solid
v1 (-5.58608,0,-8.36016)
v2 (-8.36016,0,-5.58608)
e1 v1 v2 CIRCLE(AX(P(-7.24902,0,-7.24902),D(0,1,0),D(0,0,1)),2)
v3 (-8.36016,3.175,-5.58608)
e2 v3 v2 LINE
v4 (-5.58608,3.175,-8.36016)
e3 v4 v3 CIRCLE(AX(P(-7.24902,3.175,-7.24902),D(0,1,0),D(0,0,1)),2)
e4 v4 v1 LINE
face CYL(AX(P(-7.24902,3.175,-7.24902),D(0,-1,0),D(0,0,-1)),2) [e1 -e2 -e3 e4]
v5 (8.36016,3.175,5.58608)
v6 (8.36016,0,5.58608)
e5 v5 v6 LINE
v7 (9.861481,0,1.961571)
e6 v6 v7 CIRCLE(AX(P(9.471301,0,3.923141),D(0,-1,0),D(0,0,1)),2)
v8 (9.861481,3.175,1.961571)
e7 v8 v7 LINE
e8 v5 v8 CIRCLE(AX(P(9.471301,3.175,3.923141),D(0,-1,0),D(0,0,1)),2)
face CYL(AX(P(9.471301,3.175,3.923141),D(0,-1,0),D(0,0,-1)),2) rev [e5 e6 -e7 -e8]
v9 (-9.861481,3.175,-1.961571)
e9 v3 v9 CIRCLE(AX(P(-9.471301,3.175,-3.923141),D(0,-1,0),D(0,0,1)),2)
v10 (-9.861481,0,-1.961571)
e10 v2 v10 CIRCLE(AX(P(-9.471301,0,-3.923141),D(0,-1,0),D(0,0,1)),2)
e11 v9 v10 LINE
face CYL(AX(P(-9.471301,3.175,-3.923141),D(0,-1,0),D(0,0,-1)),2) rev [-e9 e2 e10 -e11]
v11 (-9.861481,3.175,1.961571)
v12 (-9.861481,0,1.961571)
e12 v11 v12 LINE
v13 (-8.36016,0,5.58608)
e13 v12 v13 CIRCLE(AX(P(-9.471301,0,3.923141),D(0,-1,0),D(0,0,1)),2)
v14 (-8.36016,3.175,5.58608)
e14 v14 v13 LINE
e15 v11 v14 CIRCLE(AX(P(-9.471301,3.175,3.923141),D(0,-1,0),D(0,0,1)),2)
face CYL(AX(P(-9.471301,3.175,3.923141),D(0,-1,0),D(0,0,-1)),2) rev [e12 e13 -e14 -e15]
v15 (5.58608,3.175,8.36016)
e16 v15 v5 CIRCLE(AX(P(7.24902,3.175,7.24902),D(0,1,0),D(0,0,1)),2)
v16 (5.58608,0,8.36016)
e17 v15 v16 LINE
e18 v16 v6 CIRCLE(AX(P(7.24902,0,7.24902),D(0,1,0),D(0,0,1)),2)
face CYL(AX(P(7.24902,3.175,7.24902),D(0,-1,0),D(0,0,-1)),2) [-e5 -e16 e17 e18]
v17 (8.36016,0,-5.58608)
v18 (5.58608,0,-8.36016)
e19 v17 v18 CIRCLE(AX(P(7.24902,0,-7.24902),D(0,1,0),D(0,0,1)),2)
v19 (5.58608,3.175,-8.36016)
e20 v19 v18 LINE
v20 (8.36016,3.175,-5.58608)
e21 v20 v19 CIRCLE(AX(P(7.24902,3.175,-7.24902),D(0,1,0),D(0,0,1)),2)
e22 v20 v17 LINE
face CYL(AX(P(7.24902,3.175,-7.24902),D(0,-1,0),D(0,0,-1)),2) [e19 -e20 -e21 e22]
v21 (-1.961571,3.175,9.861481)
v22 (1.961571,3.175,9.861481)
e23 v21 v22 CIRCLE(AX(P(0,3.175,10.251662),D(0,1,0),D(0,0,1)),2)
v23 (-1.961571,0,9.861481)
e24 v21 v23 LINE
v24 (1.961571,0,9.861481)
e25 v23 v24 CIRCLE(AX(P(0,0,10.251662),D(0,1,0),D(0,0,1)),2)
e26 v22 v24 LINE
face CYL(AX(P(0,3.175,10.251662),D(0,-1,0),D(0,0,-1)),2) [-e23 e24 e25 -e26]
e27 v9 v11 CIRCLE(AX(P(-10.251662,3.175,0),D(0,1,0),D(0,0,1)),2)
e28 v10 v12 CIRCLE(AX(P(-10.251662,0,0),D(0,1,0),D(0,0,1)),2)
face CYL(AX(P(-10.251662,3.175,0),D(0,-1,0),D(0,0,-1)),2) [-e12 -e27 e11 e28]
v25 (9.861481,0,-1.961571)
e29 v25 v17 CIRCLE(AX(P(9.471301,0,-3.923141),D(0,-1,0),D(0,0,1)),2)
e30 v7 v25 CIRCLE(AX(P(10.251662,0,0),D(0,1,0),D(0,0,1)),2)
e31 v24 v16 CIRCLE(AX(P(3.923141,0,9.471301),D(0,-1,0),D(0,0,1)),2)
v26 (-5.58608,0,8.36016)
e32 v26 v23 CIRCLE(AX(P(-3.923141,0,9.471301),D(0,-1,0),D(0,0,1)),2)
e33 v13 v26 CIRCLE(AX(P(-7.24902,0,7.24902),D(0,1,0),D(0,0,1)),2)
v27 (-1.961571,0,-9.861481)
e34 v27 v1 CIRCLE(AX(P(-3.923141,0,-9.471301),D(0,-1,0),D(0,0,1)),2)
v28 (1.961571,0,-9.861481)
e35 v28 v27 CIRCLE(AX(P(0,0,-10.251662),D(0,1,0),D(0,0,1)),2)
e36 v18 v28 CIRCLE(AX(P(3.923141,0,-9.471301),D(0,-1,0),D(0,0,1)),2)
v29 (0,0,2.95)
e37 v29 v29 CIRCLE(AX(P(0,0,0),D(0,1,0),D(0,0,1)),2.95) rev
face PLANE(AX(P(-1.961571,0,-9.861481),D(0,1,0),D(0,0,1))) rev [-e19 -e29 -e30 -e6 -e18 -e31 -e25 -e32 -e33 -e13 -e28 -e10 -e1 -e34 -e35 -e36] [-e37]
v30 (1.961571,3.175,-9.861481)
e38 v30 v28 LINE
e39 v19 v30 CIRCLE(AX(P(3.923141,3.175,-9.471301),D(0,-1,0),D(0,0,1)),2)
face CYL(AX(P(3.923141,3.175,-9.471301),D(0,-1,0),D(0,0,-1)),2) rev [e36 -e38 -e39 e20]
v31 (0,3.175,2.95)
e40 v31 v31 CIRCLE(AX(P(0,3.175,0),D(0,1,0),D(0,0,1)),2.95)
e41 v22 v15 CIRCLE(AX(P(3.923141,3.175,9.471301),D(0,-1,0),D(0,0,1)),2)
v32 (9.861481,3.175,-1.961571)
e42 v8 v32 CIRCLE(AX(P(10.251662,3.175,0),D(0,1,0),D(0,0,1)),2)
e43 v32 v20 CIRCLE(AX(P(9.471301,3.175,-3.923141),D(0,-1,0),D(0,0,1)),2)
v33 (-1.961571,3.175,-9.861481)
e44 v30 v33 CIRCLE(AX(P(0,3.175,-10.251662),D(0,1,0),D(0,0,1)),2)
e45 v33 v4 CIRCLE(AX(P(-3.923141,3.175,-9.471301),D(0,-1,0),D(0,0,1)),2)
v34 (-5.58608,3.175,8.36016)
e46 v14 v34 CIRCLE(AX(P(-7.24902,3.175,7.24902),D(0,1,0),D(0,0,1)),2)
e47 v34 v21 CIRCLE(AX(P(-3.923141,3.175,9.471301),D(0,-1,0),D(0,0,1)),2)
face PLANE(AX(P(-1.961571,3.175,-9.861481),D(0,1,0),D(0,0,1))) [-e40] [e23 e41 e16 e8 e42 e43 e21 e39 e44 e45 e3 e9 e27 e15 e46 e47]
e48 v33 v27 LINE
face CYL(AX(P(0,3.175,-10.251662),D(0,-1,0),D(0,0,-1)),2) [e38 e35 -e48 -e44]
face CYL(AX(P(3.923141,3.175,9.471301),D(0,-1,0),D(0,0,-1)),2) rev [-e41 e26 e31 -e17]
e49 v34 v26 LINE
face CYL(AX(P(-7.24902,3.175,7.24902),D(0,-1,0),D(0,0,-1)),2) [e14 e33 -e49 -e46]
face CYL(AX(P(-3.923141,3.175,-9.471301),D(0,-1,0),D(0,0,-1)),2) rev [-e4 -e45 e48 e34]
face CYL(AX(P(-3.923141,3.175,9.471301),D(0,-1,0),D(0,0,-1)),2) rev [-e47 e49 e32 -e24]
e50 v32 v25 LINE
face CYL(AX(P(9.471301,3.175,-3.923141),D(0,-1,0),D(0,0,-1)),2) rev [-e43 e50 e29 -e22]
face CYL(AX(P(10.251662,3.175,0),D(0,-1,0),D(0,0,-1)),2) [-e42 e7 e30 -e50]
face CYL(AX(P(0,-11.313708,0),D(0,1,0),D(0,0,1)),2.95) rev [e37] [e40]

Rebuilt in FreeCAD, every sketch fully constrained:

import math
import FreeCAD as App
import Part
import Sketcher
from FreeCAD import Vector
Q = App.Units.Quantity

doc = App.newDocument("Part")
body = doc.addObject("PartDesign::Body", "Body")

sketch1 = body.newObject("Sketcher::SketchObject", "Sketch")
sketch1.AttachmentSupport = (doc.getObject("XZ_Plane"), [""])
sketch1.MapMode = "FlatFace"
sketch1.addGeometry([
    Part.ArcOfCircle(Part.Circle(Vector(0, -10.3, 0), Vector(0, 0, 1), 2), math.radians(169), math.radians(371)),
    Part.ArcOfCircle(Part.Circle(Vector(-3.9, -9.5, 0), Vector(0, 0, 1), 2), math.radians(-11), math.radians(146)),
    Part.ArcOfCircle(Part.Circle(Vector(-7.2, -7.2, 0), Vector(0, 0, 1), 2), math.radians(124), math.radians(326)),
    Part.ArcOfCircle(Part.Circle(Vector(-9.5, -3.9, 0), Vector(0, 0, 1), 2), math.radians(-56), math.radians(101)),
    Part.ArcOfCircle(Part.Circle(Vector(-10.3, 0, 0), Vector(0, 0, 1), 2), math.radians(79), math.radians(281)),
    Part.ArcOfCircle(Part.Circle(Vector(-9.5, 3.9, 0), Vector(0, 0, 1), 2), math.radians(-101), math.radians(56)),
    Part.ArcOfCircle(Part.Circle(Vector(-7.2, 7.2, 0), Vector(0, 0, 1), 2), math.radians(34), math.radians(236)),
    Part.ArcOfCircle(Part.Circle(Vector(-3.9, 9.5, 0), Vector(0, 0, 1), 2), math.radians(-146), math.radians(11)),
    Part.ArcOfCircle(Part.Circle(Vector(0, 10.3, 0), Vector(0, 0, 1), 2), math.radians(-11), math.radians(191)),
    Part.ArcOfCircle(Part.Circle(Vector(3.9, 9.5, 0), Vector(0, 0, 1), 2), math.radians(169), math.radians(326)),
    Part.ArcOfCircle(Part.Circle(Vector(7.2, 7.2, 0), Vector(0, 0, 1), 2), math.radians(-56), math.radians(146)),
    Part.ArcOfCircle(Part.Circle(Vector(9.5, 3.9, 0), Vector(0, 0, 1), 2), math.radians(124), math.radians(281)),
    Part.ArcOfCircle(Part.Circle(Vector(10.3, 0, 0), Vector(0, 0, 1), 2), math.radians(-101), math.radians(101)),
    Part.ArcOfCircle(Part.Circle(Vector(9.5, -3.9, 0), Vector(0, 0, 1), 2), math.radians(79), math.radians(236)),
    Part.ArcOfCircle(Part.Circle(Vector(7.2, -7.2, 0), Vector(0, 0, 1), 2), math.radians(-146), math.radians(56)),
    Part.ArcOfCircle(Part.Circle(Vector(3.9, -9.5, 0), Vector(0, 0, 1), 2), math.radians(34), math.radians(191)),
    Part.Circle(Vector(0, 0, 0), Vector(0, 0, 1), 4),
], False)
sketch1.addConstraint([
    Sketcher.Constraint("Tangent", 0, 1, 1, 1),
    Sketcher.Constraint("Tangent", 1, 2, 2, 2),
    Sketcher.Constraint("Tangent", 2, 1, 3, 1),
    Sketcher.Constraint("Tangent", 3, 2, 4, 2),
    Sketcher.Constraint("Tangent", 4, 1, 5, 1),
    Sketcher.Constraint("Tangent", 5, 2, 6, 2),
    Sketcher.Constraint("Tangent", 6, 1, 7, 1),
    Sketcher.Constraint("Tangent", 7, 2, 8, 2),
    Sketcher.Constraint("Tangent", 8, 1, 9, 1),
    Sketcher.Constraint("Tangent", 9, 2, 10, 2),
    Sketcher.Constraint("Tangent", 10, 1, 11, 1),
    Sketcher.Constraint("Tangent", 11, 2, 12, 2),
    Sketcher.Constraint("Tangent", 12, 1, 13, 1),
    Sketcher.Constraint("Tangent", 13, 2, 14, 2),
    Sketcher.Constraint("Tangent", 14, 1, 15, 1),
    Sketcher.Constraint("Tangent", 15, 2, 0, 2),
    Sketcher.Constraint("Coincident", 16, 3, -1, 1),
    Sketcher.Constraint("Equal", 0, 1),
    Sketcher.Constraint("Equal", 1, 2),
    Sketcher.Constraint("Equal", 2, 3),
    Sketcher.Constraint("Equal", 3, 4),
    Sketcher.Constraint("Equal", 4, 5),
    Sketcher.Constraint("Equal", 5, 6),
    Sketcher.Constraint("Equal", 6, 7),
    Sketcher.Constraint("Equal", 7, 8),
    Sketcher.Constraint("Equal", 8, 9),
    Sketcher.Constraint("Equal", 9, 10),
    Sketcher.Constraint("Equal", 10, 11),
    Sketcher.Constraint("Equal", 11, 12),
    Sketcher.Constraint("Equal", 12, 13),
    Sketcher.Constraint("Equal", 13, 14),
    Sketcher.Constraint("Equal", 14, 15),
    Sketcher.Constraint("Symmetric", 0, 3, 8, 3, -1, 1),
    Sketcher.Constraint("Symmetric", 2, 3, 10, 3, -1, 1),
    Sketcher.Constraint("Symmetric", 4, 3, 12, 3, -1, 1),
    Sketcher.Constraint("Symmetric", 6, 3, 14, 3, -1, 1),
    Sketcher.Constraint("Symmetric", 7, 3, 9, 3, -2),
    Sketcher.Constraint("Symmetric", 5, 3, 11, 3, -2),
    Sketcher.Constraint("Diameter", 16, Q("8 mm")),
    Sketcher.Constraint("Radius", 0, Q("2 mm")),
    Sketcher.Constraint("DistanceY", 1, 3, -1, 1, Q("9.471301 mm")),
    Sketcher.Constraint("DistanceX", 3, 3, -1, 1, Q("9.471301 mm")),
    Sketcher.Constraint("DistanceY", 0, 3, 1, 2, Q("1.891502 mm")),
    Sketcher.Constraint("DistanceX", 4, 3, 2, 1, Q("1.891502 mm")),
])
pad1 = body.newObject("PartDesign::Pad", "Pad")
pad1.Profile = sketch1
pad1.Length = 3.175
pad1.Reversed = True

sketch2 = body.newObject("Sketcher::SketchObject", "Sketch001")
sketch2.AttachmentSupport = (doc.getObject("XZ_Plane"), [""])
sketch2.MapMode = "FlatFace"
sketch2.AttachmentOffset = App.Placement(Vector(0, 0, -3.175), App.Rotation())
sketch2.addGeometry([
    Part.Circle(Vector(0, 0, 0), Vector(0, 0, 1), 4),
    Part.Circle(Vector(0, 0, 0), Vector(0, 0, 1), 3),
], False)
sketch2.addConstraint([
    Sketcher.Constraint("Coincident", 0, 3, -1, 1),
    Sketcher.Constraint("Coincident", 1, 3, -1, 1),
    Sketcher.Constraint("Diameter", 0, Q("8 mm")),
    Sketcher.Constraint("Diameter", 1, Q("5.9 mm")),
])
pad2 = body.newObject("PartDesign::Pad", "Pad001")
pad2.Profile = sketch2
pad2.Length = 3.175

doc.recompute()
